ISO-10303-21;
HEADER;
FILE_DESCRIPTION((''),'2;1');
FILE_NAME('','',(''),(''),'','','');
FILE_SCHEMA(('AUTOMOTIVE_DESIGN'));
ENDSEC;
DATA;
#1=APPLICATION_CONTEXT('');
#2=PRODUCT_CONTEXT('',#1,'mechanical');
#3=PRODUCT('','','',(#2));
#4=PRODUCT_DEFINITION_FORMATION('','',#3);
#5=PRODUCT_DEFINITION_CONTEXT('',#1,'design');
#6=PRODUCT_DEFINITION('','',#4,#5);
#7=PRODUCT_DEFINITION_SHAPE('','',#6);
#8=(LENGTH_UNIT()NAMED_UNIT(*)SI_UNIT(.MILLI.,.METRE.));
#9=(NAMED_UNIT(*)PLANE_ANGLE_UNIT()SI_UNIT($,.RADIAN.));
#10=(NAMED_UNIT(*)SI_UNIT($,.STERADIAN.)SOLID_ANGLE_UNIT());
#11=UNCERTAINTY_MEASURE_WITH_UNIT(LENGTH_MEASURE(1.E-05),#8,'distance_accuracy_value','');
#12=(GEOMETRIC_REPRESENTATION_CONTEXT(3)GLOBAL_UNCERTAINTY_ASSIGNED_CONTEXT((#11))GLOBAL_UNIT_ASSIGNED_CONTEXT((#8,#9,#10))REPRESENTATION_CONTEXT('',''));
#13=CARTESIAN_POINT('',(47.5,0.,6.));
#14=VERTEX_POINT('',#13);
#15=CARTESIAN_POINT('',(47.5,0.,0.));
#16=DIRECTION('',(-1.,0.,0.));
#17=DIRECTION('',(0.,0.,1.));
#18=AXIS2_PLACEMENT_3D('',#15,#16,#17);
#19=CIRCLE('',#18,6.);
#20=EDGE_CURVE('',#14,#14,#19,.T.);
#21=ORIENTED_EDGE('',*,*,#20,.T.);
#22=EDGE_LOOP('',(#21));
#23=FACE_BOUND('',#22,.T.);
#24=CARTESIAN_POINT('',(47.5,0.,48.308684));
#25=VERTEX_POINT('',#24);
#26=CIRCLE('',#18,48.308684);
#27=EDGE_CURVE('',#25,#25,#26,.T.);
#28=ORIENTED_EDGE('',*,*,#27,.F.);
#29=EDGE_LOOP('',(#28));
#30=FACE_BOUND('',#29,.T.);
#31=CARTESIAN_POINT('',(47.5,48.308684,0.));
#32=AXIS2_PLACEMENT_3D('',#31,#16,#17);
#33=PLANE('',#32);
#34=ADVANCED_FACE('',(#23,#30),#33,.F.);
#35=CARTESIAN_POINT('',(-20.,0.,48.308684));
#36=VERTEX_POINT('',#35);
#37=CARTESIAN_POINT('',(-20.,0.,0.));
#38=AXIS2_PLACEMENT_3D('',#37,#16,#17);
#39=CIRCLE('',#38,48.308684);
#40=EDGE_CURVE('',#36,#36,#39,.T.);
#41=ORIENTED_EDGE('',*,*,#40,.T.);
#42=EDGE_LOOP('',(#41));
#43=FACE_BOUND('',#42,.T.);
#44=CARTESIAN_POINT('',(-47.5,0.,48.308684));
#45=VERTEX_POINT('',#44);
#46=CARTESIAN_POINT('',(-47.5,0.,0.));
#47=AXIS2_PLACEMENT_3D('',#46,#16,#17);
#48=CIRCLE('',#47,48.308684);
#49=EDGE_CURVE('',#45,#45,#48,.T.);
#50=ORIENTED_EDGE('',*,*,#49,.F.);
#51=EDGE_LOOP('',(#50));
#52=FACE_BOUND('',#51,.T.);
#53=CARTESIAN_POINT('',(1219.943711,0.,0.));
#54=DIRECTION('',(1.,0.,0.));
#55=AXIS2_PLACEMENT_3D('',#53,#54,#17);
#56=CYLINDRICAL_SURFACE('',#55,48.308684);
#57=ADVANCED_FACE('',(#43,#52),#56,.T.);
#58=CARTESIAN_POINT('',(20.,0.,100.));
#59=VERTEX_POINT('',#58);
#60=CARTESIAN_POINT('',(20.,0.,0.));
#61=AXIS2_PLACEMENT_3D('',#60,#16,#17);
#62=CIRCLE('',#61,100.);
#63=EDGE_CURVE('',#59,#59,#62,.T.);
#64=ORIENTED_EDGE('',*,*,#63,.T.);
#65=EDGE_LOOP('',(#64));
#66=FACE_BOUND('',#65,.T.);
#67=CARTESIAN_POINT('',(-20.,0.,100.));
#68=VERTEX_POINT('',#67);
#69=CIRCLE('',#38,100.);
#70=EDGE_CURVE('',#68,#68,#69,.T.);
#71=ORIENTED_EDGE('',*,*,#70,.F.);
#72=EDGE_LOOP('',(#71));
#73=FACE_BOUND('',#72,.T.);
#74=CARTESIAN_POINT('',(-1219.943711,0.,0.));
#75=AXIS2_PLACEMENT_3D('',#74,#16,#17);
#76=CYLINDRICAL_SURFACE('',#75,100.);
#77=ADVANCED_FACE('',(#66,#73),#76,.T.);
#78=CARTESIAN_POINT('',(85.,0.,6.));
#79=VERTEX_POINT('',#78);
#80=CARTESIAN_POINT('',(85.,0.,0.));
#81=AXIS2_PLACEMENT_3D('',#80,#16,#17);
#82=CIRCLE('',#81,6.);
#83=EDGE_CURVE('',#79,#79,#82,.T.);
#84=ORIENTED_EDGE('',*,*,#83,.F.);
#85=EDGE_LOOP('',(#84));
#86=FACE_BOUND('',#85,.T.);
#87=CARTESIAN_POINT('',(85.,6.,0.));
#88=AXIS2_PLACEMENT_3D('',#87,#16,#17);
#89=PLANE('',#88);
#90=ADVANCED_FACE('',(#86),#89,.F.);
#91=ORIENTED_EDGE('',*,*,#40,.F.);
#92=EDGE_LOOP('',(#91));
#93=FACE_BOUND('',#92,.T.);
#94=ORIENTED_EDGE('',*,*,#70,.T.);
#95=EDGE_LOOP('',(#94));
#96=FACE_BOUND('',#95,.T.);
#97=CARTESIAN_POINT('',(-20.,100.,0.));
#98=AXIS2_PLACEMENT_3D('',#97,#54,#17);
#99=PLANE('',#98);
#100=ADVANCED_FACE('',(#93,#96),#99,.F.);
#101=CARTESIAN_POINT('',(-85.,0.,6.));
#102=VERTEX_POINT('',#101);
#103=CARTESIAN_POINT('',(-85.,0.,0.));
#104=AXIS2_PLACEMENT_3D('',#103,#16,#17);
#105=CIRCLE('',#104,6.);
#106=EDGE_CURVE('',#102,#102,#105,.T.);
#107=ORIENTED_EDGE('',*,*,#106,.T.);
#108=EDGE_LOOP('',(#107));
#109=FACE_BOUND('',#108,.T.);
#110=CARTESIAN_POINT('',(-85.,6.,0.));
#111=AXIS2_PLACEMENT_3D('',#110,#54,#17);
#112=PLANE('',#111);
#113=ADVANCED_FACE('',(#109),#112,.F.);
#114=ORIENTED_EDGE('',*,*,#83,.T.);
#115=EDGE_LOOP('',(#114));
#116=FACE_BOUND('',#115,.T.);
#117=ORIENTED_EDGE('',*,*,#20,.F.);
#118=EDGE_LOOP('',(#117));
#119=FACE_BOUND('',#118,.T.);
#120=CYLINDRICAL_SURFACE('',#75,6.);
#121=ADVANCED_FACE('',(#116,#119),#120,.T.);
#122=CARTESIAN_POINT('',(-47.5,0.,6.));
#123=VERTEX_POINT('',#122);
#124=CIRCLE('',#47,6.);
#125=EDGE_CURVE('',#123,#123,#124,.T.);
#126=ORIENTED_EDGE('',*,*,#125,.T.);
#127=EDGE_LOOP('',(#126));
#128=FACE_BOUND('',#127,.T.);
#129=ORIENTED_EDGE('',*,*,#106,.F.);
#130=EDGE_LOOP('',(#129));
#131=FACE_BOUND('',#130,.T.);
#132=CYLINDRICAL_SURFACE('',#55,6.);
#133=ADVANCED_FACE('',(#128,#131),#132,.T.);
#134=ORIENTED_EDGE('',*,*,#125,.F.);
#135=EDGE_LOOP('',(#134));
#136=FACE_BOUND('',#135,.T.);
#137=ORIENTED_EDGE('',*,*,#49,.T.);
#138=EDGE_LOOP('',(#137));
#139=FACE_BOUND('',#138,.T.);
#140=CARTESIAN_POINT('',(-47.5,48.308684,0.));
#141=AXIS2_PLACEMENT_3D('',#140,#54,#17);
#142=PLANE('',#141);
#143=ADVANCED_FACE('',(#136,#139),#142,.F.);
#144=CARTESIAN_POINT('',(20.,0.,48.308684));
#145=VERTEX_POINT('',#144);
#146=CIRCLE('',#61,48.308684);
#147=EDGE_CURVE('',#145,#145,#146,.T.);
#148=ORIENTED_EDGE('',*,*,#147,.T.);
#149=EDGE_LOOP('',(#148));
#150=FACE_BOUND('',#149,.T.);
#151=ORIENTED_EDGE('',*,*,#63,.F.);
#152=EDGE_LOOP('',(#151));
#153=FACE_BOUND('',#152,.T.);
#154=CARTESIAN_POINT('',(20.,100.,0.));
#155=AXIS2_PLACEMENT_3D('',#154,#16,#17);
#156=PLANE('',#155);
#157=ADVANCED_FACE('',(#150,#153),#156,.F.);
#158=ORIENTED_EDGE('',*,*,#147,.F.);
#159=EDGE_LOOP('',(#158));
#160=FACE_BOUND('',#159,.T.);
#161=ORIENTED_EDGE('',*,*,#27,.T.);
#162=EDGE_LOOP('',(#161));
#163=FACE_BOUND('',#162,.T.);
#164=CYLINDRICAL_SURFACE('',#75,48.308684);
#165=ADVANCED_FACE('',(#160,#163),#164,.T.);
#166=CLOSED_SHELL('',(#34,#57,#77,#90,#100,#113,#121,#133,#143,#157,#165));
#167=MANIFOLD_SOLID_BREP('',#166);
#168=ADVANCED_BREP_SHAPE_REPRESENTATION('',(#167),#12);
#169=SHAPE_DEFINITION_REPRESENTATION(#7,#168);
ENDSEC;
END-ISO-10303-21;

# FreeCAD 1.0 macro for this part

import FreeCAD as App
import Part
import Sketcher
from FreeCAD import Vector

doc = App.newDocument("Part")
body = doc.addObject("PartDesign::Body", "Body")

sketch1 = body.newObject("Sketcher::SketchObject", "Sketch")
sketch1.AttachmentSupport = (doc.getObject("XY_Plane"), [""])
sketch1.MapMode = "FlatFace"
sketch1.addGeometry([
    Part.LineSegment(Vector(0, 100, 0), Vector(0, 0, 0)),
    Part.LineSegment(Vector(0, 0, 0), Vector(85, 0, 0)),
    Part.LineSegment(Vector(85, 0, 0), Vector(85, 6, 0)),
    Part.LineSegment(Vector(85, 6, 0), Vector(48, 6, 0)),
    Part.LineSegment(Vector(48, 6, 0), Vector(48, 48, 0)),
    Part.LineSegment(Vector(48, 48, 0), Vector(20, 48, 0)),
    Part.LineSegment(Vector(20, 48, 0), Vector(20, 100, 0)),
    Part.LineSegment(Vector(20, 100, 0), Vector(0, 100, 0)),
], False)
sketch1.addConstraint([
    Sketcher.Constraint("Coincident", 0, 2, 1, 1),
    Sketcher.Constraint("Coincident", 1, 2, 2, 1),
    Sketcher.Constraint("Coincident", 2, 2, 3, 1),
    Sketcher.Constraint("Coincident", 3, 2, 4, 1),
    Sketcher.Constraint("Coincident", 4, 2, 5, 1),
    Sketcher.Constraint("Coincident", 5, 2, 6, 1),
    Sketcher.Constraint("Coincident", 6, 2, 7, 1),
    Sketcher.Constraint("Coincident", 7, 2, 0, 1),
    Sketcher.Constraint("Vertical", 0),
    Sketcher.Constraint("Horizontal", 1),
    Sketcher.Constraint("Vertical", 2),
    Sketcher.Constraint("Horizontal", 3),
    Sketcher.Constraint("Vertical", 4),
    Sketcher.Constraint("Horizontal", 5),
    Sketcher.Constraint("Vertical", 6),
    Sketcher.Constraint("Horizontal", 7),
    Sketcher.Constraint("Coincident", 0, 2, -1, 1),
    Sketcher.Constraint("DistanceX", 1, 1, 1, 2, 85.0),
    Sketcher.Constraint("DistanceX", 7, 2, 7, 1, 20.0),
    Sketcher.Constraint("DistanceY", 0, 2, 0, 1, 100.0),
    Sketcher.Constraint("DistanceY", 2, 1, 2, 2, 6.0),
    Sketcher.Constraint("DistanceX", 3, 2, 3, 1, 37.5),
    Sketcher.Constraint("DistanceY", 4, 1, 4, 2, 42.308684),
])
revolution = body.newObject("PartDesign::Revolution", "Revolution")
revolution.Profile = sketch1
revolution.ReferenceAxis = (sketch1, ["H_Axis"])
revolution.Angle = 360
doc.recompute()

mirrored = body.newObject("PartDesign::Mirrored", "Mirrored")
mirrored.Originals = [revolution]
mirrored.MirrorPlane = (doc.getObject("YZ_Plane"), [""])
body.Tip = mirrored

doc.recompute()
